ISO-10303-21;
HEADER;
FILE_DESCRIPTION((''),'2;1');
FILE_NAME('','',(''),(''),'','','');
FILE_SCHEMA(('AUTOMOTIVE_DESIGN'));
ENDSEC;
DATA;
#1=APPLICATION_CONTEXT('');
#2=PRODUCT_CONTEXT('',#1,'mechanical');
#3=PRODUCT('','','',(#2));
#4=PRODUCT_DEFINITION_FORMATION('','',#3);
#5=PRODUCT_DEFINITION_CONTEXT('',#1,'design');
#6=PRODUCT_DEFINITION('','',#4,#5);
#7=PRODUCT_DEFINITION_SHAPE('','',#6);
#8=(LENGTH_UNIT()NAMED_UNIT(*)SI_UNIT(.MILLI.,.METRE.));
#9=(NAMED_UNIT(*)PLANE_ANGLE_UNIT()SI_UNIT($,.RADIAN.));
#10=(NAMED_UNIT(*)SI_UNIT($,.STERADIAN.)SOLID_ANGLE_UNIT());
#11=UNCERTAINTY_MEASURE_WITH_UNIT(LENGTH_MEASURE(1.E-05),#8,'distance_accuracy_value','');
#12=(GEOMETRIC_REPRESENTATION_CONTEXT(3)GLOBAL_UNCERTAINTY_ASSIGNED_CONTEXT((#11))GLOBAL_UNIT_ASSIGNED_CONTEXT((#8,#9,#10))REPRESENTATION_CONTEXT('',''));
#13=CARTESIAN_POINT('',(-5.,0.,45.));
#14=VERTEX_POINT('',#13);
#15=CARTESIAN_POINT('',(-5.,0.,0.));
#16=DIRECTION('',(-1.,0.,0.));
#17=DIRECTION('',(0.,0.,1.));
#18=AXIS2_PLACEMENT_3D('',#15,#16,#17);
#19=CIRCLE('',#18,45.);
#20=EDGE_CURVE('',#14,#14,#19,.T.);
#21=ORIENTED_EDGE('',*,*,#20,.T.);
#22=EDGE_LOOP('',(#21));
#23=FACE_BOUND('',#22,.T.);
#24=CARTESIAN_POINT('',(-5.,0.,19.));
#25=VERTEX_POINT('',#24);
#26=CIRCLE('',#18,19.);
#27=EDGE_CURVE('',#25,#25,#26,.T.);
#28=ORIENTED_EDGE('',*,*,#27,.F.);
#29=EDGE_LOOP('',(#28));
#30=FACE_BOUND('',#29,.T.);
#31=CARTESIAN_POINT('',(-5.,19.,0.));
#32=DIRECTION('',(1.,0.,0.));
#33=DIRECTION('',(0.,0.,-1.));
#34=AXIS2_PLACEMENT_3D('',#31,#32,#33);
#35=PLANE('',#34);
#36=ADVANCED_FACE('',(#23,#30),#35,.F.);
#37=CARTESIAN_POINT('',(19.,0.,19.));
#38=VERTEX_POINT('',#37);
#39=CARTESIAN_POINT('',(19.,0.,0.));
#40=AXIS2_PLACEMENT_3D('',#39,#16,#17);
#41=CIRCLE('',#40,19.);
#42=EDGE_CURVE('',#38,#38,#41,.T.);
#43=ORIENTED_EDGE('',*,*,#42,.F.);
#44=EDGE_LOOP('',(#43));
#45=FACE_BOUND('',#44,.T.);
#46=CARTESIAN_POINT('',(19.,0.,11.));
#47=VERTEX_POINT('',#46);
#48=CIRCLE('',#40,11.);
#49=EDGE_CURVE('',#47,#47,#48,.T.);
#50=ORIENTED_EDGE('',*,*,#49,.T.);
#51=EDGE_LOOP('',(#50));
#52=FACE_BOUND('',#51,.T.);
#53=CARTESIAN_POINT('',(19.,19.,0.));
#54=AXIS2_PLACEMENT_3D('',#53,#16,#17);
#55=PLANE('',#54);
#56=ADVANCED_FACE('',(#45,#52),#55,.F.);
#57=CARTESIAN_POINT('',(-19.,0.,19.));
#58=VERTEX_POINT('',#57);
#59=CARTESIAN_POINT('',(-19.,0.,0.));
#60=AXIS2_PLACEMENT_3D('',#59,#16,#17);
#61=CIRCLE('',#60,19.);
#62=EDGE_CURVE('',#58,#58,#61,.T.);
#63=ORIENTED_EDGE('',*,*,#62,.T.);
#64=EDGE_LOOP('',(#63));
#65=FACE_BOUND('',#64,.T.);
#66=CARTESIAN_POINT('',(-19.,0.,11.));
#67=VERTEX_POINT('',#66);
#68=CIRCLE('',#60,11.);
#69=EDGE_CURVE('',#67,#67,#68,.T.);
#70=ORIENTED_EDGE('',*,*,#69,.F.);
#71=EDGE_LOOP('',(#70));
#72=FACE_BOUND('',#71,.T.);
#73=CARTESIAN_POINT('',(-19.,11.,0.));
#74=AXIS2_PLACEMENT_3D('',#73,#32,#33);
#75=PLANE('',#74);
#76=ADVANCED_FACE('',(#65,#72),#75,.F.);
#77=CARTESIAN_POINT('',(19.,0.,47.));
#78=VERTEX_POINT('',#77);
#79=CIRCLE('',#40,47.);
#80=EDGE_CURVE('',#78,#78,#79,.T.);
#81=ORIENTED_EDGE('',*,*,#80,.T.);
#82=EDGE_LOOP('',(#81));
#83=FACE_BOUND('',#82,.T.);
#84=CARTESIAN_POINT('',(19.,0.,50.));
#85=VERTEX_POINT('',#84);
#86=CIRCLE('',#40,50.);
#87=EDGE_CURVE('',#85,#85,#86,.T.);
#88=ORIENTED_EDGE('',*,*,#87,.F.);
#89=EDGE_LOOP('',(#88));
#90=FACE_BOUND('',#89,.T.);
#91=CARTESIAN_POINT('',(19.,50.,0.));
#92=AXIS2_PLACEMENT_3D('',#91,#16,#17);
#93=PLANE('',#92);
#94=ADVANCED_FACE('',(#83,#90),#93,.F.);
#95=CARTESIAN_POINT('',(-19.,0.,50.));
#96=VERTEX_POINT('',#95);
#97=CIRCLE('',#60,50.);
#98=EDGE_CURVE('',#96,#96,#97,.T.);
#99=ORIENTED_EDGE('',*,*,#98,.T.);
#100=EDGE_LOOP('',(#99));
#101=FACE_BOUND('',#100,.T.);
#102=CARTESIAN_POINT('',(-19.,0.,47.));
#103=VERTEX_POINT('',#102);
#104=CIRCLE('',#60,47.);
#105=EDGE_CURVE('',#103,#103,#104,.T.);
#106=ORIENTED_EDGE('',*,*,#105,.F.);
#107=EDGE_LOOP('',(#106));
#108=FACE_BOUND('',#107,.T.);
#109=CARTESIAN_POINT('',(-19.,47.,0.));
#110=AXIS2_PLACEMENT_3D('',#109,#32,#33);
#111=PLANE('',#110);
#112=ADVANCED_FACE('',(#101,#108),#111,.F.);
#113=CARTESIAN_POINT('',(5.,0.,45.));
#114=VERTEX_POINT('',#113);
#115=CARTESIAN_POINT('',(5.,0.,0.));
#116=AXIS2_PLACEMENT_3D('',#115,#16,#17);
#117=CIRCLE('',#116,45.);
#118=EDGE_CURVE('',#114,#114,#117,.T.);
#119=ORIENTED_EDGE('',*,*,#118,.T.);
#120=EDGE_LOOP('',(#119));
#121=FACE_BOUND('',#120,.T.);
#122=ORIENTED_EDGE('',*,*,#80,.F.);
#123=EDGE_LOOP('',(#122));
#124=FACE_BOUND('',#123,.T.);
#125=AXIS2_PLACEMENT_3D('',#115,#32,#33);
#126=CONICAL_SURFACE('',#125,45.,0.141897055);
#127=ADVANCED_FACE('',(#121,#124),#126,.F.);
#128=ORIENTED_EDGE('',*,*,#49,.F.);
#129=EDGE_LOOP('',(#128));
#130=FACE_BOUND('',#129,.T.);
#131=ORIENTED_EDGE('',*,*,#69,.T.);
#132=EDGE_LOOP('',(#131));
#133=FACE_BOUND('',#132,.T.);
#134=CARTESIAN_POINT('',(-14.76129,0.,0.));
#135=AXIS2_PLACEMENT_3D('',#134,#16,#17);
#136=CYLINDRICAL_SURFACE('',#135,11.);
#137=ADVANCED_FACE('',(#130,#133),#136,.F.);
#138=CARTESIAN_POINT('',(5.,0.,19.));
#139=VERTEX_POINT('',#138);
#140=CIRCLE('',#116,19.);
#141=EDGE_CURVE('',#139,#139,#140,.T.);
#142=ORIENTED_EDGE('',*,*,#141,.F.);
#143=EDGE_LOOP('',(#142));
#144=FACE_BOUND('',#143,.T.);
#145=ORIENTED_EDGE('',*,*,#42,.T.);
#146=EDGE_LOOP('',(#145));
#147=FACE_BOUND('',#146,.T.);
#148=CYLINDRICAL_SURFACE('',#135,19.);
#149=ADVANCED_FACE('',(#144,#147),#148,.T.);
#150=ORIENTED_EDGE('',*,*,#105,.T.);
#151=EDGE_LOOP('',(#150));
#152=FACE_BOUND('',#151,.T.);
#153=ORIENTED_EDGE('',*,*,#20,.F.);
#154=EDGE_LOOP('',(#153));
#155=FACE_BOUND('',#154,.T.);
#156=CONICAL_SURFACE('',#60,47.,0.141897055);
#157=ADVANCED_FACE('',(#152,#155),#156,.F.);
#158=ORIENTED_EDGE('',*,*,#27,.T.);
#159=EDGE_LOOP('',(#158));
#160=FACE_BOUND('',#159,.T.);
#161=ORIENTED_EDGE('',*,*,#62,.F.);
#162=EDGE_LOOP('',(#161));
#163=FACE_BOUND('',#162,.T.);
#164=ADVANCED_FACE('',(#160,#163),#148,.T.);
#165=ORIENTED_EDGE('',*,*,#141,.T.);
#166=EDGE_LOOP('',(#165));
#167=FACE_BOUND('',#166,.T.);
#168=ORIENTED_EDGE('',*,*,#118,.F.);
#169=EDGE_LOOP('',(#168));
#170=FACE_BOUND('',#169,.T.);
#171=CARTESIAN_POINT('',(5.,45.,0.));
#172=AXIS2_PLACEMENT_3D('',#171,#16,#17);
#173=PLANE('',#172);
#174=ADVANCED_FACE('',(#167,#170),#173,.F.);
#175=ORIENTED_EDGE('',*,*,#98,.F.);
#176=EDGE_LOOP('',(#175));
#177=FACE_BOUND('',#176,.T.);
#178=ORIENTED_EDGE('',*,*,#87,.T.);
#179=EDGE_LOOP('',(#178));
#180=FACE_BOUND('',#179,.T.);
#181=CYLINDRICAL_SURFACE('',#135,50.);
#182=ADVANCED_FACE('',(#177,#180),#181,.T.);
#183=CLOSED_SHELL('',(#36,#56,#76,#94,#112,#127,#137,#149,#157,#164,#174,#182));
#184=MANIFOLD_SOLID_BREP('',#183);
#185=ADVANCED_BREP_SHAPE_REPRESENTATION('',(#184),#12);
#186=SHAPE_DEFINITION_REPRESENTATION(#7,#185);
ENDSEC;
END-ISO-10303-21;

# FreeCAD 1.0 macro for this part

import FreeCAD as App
import Part
import Sketcher

doc = App.newDocument("Part")
params = doc.addObject("Spreadsheet::Sheet", "Params")
for row, (alias, value) in enumerate([
    ("sketch1_width", "38 mm"),
    ("sketch1_width2", "14 mm"),
    ("sketch1_height", "8 mm"),
    ("sketch1_height2", "26 mm"),
    ("sketch1_height3", "3 mm"),
    ("revolution_angle", "360 deg"),
], start=1):
    params.set(f"A{row}", alias)
    params.set(f"B{row}", "=" + value)
    params.setAlias(f"B{row}", alias)

body = doc.addObject("PartDesign::Body", "Body")

# Sketch on XY plane
sketch1 = doc.addObject("Sketcher::SketchObject", "Sketch")
body.addObject(sketch1)
sketch1.AttachmentSupport = (doc.XY_Plane, [""])
sketch1.MapMode = "FlatFace"
sketch1.addGeometry([
    Part.LineSegment(App.Vector(-19, 11, 0), App.Vector(19, 11, 0)),  # 0
    Part.LineSegment(App.Vector(19, 11, 0), App.Vector(19, 19, 0)),  # 1
    Part.LineSegment(App.Vector(19, 19, 0), App.Vector(5, 19, 0)),  # 2
    Part.LineSegment(App.Vector(5, 19, 0), App.Vector(5, 45, 0)),  # 3
    Part.LineSegment(App.Vector(5, 45, 0), App.Vector(19, 47, 0)),  # 4
    Part.LineSegment(App.Vector(19, 47, 0), App.Vector(19, 50, 0)),  # 5
    Part.LineSegment(App.Vector(19, 50, 0), App.Vector(-19, 50, 0)),  # 6
    Part.LineSegment(App.Vector(-19, 50, 0), App.Vector(-19, 47, 0)),  # 7
    Part.LineSegment(App.Vector(-19, 47, 0), App.Vector(-5, 45, 0)),  # 8
    Part.LineSegment(App.Vector(-5, 45, 0), App.Vector(-5, 19, 0)),  # 9
    Part.LineSegment(App.Vector(-5, 19, 0), App.Vector(-19, 19, 0)),  # 10
    Part.LineSegment(App.Vector(-19, 19, 0), App.Vector(-19, 11, 0)),  # 11
], False)
sketch1.addConstraint([
    Sketcher.Constraint("Coincident", 0, 2, 1, 1),
    Sketcher.Constraint("Coincident", 1, 2, 2, 1),
    Sketcher.Constraint("Coincident", 2, 2, 3, 1),
    Sketcher.Constraint("Coincident", 3, 2, 4, 1),
    Sketcher.Constraint("Coincident", 4, 2, 5, 1),
    Sketcher.Constraint("Coincident", 5, 2, 6, 1),
    Sketcher.Constraint("Coincident", 6, 2, 7, 1),
    Sketcher.Constraint("Coincident", 7, 2, 8, 1),
    Sketcher.Constraint("Coincident", 8, 2, 9, 1),
    Sketcher.Constraint("Coincident", 9, 2, 10, 1),
    Sketcher.Constraint("Coincident", 10, 2, 11, 1),
    Sketcher.Constraint("Coincident", 11, 2, 0, 1),
    Sketcher.Constraint("Horizontal", 0),
    Sketcher.Constraint("Vertical", 1),
    Sketcher.Constraint("Horizontal", 2),
    Sketcher.Constraint("Vertical", 3),
    Sketcher.Constraint("Vertical", 5),
    Sketcher.Constraint("Horizontal", 6),
    Sketcher.Constraint("Vertical", 7),
    Sketcher.Constraint("Vertical", 9),
    Sketcher.Constraint("Horizontal", 10),
    Sketcher.Constraint("Vertical", 11),
    Sketcher.Constraint("Symmetric", 4, 2, 7, 2, -2),
    Sketcher.Constraint("Symmetric", 3, 2, 8, 2, -2),
    Sketcher.Constraint("Symmetric", 1, 2, 10, 2, -2),
    Sketcher.Constraint("Vertical", 1, 2, 4, 2),
    Sketcher.Constraint("DistanceX", 0, 1, 0, 2, 38.0),
    Sketcher.Constraint("DistanceX", 2, 2, 2, 1, 14.0),
    Sketcher.Constraint("DistanceY", 1, 1, 1, 2, 8.0),
    Sketcher.Constraint("DistanceY", 3, 1, 3, 2, 26.0),
    Sketcher.Constraint("DistanceY", 5, 1, 5, 2, 3.0),
    Sketcher.Constraint("DistanceY", -1, 1, 0, 2, 11.0),
    Sketcher.Constraint("DistanceY", -1, 1, 4, 2, 47.0),
])
sketch1.setExpression("Constraints[26]", "Params.sketch1_width")
sketch1.setExpression("Constraints[27]", "Params.sketch1_width2")
sketch1.setExpression("Constraints[28]", "Params.sketch1_height")
sketch1.setExpression("Constraints[29]", "Params.sketch1_height2")
sketch1.setExpression("Constraints[30]", "Params.sketch1_height3")
revolution = doc.addObject("PartDesign::Revolution", "Revolution")
body.addObject(revolution)
revolution.Profile = sketch1
revolution.ReferenceAxis = (sketch1, ["H_Axis"])
revolution.setExpression("Angle", "Params.revolution_angle")

doc.recompute()
